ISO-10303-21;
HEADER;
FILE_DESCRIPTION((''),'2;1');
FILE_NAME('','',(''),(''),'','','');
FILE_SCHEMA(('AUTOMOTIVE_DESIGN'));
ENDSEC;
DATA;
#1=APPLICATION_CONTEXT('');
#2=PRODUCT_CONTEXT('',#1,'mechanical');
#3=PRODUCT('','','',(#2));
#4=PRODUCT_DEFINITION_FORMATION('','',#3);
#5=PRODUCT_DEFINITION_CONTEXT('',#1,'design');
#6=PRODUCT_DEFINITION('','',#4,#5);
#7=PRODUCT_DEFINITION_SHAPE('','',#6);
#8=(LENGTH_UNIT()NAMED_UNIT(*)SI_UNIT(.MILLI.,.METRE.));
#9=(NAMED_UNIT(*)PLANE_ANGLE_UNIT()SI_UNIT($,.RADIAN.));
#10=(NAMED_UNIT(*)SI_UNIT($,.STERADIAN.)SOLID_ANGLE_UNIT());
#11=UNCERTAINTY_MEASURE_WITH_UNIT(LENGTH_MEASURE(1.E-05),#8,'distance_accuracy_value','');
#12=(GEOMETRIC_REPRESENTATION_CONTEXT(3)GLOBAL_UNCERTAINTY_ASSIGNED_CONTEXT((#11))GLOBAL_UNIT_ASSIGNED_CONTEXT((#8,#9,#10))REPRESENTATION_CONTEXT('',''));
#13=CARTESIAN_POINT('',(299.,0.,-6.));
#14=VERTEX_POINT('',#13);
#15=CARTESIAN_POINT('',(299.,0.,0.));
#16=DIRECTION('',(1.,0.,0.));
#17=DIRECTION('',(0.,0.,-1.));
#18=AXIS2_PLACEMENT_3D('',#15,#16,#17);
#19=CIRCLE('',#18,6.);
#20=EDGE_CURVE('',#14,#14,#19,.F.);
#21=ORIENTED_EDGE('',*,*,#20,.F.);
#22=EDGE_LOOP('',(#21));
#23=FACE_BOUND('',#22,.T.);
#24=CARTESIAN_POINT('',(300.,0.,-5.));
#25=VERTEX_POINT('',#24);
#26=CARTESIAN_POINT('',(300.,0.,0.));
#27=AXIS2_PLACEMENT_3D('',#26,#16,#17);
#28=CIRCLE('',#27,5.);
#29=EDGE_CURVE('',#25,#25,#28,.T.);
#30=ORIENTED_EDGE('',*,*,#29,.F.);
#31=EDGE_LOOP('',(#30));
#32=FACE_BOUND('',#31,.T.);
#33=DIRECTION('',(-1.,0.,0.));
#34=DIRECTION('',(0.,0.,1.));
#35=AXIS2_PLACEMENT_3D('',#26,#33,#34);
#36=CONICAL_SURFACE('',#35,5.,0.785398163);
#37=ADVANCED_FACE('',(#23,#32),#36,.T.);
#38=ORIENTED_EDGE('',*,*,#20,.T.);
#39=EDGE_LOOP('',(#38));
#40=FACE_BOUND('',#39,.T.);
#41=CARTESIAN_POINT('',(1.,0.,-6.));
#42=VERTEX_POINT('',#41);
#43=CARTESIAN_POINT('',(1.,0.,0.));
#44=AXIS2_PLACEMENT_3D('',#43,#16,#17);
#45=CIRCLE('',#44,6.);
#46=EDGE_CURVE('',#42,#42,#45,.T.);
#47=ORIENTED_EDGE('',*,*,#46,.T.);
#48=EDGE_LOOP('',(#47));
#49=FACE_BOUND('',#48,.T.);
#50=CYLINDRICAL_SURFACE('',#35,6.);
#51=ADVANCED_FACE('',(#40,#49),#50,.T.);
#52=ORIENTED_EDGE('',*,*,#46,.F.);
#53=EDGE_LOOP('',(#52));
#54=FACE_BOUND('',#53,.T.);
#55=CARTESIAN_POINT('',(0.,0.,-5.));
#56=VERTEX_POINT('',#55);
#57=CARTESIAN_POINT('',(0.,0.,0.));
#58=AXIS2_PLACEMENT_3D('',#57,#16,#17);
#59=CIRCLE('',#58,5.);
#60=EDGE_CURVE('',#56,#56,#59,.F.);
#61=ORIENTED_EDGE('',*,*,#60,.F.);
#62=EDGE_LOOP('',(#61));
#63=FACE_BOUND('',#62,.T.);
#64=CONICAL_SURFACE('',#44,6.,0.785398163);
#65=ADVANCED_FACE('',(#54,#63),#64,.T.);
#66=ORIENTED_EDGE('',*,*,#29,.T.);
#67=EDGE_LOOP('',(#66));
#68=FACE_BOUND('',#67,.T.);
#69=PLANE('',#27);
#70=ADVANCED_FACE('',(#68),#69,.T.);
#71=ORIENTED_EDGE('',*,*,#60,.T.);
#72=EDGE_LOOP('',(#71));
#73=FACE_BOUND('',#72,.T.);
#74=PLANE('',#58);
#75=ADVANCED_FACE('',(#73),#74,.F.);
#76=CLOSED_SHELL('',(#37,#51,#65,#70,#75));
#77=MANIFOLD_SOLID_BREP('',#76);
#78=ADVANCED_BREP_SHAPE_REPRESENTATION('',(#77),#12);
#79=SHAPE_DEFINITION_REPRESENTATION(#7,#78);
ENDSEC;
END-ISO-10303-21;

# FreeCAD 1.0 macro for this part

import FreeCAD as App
import Part
import Sketcher
from FreeCAD import Vector


def edges_at(feature, points):
    """Names of the edges that pass closest to the given points."""
    edges = feature.Shape.Edges
    near = lambda p: min(range(len(edges)), key=lambda i: edges[i].distToShape(Part.Vertex(*p))[0])
    return sorted({f"Edge{near(p) + 1}" for p in points})

doc = App.newDocument("Part")
body = doc.addObject("PartDesign::Body", "Body")

# Sketch on YZ plane
sketch1 = doc.addObject("Sketcher::SketchObject", "Sketch")
body.addObject(sketch1)
sketch1.AttachmentSupport = (doc.YZ_Plane, [""])
sketch1.MapMode = "FlatFace"
sketch1.addGeometry(Part.Circle(Vector(0, 0, 0), Vector(0, 0, 1), 6), False)
sketch1.addConstraint([
    Sketcher.Constraint("Coincident", 0, 3, -1, 1),
    Sketcher.Constraint("Diameter", 0, 12.0),
])
pad1 = doc.addObject("PartDesign::Pad", "Pad")
body.addObject(pad1)
pad1.Profile = sketch1
pad1.Length = 300
doc.recompute()

chamfer = doc.addObject("PartDesign::Chamfer", "Chamfer")
body.addObject(chamfer)
chamfer.Base = (pad1, edges_at(pad1, [(0, 0, 6), (300, 0, 6)]))
chamfer.Size = 1

doc.recompute()
